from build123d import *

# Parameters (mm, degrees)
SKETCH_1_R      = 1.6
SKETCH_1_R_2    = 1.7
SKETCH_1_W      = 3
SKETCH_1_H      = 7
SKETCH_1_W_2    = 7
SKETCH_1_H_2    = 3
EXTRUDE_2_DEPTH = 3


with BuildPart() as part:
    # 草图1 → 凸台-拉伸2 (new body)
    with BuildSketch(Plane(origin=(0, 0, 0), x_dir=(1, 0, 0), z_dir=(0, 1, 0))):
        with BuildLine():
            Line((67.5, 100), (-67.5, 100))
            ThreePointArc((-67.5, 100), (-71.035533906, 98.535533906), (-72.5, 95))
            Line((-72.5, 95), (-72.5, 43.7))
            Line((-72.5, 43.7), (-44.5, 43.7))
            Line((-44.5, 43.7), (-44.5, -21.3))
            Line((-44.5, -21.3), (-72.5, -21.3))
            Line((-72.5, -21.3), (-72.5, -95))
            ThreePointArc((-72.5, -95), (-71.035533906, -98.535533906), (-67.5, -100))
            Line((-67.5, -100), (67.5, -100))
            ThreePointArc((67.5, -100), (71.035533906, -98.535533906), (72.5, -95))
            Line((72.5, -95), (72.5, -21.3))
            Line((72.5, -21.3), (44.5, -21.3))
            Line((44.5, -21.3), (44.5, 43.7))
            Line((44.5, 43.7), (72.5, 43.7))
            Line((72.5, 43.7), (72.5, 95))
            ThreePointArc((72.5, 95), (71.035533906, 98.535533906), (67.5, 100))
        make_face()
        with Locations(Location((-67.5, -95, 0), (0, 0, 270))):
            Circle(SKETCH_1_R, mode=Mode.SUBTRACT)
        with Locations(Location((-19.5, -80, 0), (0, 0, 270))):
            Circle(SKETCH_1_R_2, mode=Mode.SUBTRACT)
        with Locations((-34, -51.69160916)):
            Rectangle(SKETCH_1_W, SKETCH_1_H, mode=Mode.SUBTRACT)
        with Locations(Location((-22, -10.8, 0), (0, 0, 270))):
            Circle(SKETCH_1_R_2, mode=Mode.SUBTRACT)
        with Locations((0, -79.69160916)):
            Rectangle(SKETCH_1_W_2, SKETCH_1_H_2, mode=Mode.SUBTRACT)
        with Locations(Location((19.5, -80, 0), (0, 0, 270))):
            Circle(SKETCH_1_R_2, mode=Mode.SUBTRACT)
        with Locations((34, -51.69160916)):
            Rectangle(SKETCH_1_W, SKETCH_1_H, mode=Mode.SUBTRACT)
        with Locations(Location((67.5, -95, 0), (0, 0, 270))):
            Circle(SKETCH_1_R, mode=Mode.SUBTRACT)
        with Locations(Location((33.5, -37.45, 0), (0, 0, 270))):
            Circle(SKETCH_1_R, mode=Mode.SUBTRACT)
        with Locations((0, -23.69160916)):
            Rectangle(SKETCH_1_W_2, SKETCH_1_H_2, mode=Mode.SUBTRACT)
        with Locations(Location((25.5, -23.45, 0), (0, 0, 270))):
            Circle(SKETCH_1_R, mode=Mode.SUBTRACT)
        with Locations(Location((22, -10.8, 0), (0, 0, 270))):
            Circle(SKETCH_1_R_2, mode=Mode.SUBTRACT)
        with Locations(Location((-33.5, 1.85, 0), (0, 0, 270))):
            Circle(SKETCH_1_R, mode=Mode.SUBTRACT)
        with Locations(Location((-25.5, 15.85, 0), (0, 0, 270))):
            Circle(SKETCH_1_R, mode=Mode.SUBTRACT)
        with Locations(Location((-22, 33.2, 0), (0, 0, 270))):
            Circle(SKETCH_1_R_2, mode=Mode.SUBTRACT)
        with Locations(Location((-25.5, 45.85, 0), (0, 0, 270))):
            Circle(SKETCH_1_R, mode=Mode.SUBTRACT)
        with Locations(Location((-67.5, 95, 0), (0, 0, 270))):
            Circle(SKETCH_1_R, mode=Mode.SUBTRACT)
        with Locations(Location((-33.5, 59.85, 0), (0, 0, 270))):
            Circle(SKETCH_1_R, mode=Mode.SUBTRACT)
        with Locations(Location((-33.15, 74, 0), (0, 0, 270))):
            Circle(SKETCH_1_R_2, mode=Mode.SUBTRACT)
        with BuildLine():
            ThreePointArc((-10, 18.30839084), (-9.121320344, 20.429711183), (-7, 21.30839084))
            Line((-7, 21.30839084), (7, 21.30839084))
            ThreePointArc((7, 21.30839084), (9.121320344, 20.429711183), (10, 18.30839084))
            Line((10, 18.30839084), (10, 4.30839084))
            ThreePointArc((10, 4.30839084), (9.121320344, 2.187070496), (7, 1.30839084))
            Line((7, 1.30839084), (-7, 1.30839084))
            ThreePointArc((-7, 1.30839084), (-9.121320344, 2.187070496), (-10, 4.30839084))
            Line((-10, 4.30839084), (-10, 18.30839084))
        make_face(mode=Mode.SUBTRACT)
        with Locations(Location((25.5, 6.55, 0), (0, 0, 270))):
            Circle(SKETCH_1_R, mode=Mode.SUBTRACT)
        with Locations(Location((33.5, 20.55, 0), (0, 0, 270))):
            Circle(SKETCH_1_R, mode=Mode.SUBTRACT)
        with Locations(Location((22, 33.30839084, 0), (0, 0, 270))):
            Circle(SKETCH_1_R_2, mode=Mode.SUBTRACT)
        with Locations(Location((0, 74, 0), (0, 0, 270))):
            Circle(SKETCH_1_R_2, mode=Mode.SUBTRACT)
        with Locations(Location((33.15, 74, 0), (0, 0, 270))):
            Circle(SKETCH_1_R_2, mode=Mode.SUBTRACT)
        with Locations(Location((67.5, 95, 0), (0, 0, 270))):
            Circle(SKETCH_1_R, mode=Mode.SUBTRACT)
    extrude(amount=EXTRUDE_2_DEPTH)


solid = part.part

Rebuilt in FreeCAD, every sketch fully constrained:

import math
import FreeCAD as App
import Part
import Sketcher
from FreeCAD import Vector
Q = App.Units.Quantity

doc = App.newDocument("Part")
body = doc.addObject("PartDesign::Body", "Body")

sketch1 = doc.addObject("Sketcher::SketchObject", "Sketch")
body.addObject(sketch1)
sketch1.AttachmentSupport = (doc.XZ_Plane, [""])
sketch1.MapMode = "FlatFace"
sketch1.addGeometry(Part.LineSegment(Vector(67.5, -100, 0), Vector(-67.5, -100, 0)), False)
sketch1.addGeometry(Part.ArcOfCircle(Part.Circle(Vector(-67.5, -95, 0), Vector(0, 0, 1), 5), math.radians(180), math.radians(270)), False)
sketch1.addGeometry(Part.LineSegment(Vector(-72.5, -95, 0), Vector(-72.5, -43.7, 0)), False)
sketch1.addGeometry(Part.LineSegment(Vector(-72.5, -43.7, 0), Vector(-44.5, -43.7, 0)), False)
sketch1.addGeometry(Part.LineSegment(Vector(-44.5, -43.7, 0), Vector(-44.5, 21.3, 0)), False)
sketch1.addGeometry(Part.LineSegment(Vector(-44.5, 21.3, 0), Vector(-72.5, 21.3, 0)), False)
sketch1.addGeometry(Part.LineSegment(Vector(-72.5, 21.3, 0), Vector(-72.5, 95, 0)), False)
sketch1.addGeometry(Part.ArcOfCircle(Part.Circle(Vector(-67.5, 95, 0), Vector(0, 0, 1), 5), math.radians(90), math.radians(180)), False)
sketch1.addGeometry(Part.LineSegment(Vector(-67.5, 100, 0), Vector(67.5, 100, 0)), False)
sketch1.addGeometry(Part.ArcOfCircle(Part.Circle(Vector(67.5, 95, 0), Vector(0, 0, 1), 5), math.radians(0), math.radians(90)), False)
sketch1.addGeometry(Part.LineSegment(Vector(72.5, 95, 0), Vector(72.5, 21.3, 0)), False)
sketch1.addGeometry(Part.LineSegment(Vector(72.5, 21.3, 0), Vector(44.5, 21.3, 0)), False)
sketch1.addGeometry(Part.LineSegment(Vector(44.5, 21.3, 0), Vector(44.5, -43.7, 0)), False)
sketch1.addGeometry(Part.LineSegment(Vector(44.5, -43.7, 0), Vector(72.5, -43.7, 0)), False)
sketch1.addGeometry(Part.LineSegment(Vector(72.5, -43.7, 0), Vector(72.5, -95, 0)), False)
sketch1.addGeometry(Part.ArcOfCircle(Part.Circle(Vector(67.5, -95, 0), Vector(0, 0, 1), 5), math.radians(-90), math.radians(0)), False)
sketch1.addGeometry(Part.Circle(Vector(-67.5, 95, 0), Vector(0, 0, 1), 1.6), False)
sketch1.addGeometry(Part.Circle(Vector(-19.5, 80, 0), Vector(0, 0, 1), 1.7), False)
sketch1.addGeometry(Part.LineSegment(Vector(-32.5, 55.2, 0), Vector(-35.5, 55.2, 0)), False)
sketch1.addGeometry(Part.LineSegment(Vector(-35.5, 55.2, 0), Vector(-35.5, 48.2, 0)), False)
sketch1.addGeometry(Part.LineSegment(Vector(-35.5, 48.2, 0), Vector(-32.5, 48.2, 0)), False)
sketch1.addGeometry(Part.LineSegment(Vector(-32.5, 48.2, 0), Vector(-32.5, 55.2, 0)), False)
sketch1.addGeometry(Part.Circle(Vector(-22, 10.8, 0), Vector(0, 0, 1), 1.7), False)
sketch1.addGeometry(Part.LineSegment(Vector(3.5, 81.2, 0), Vector(-3.5, 81.2, 0)), False)
sketch1.addGeometry(Part.LineSegment(Vector(-3.5, 81.2, 0), Vector(-3.5, 78.2, 0)), False)
sketch1.addGeometry(Part.LineSegment(Vector(-3.5, 78.2, 0), Vector(3.5, 78.2, 0)), False)
sketch1.addGeometry(Part.LineSegment(Vector(3.5, 78.2, 0), Vector(3.5, 81.2, 0)), False)
sketch1.addGeometry(Part.Circle(Vector(19.5, 80, 0), Vector(0, 0, 1), 1.7), False)
sketch1.addGeometry(Part.LineSegment(Vector(35.5, 55.2, 0), Vector(32.5, 55.2, 0)), False)
sketch1.addGeometry(Part.LineSegment(Vector(32.5, 55.2, 0), Vector(32.5, 48.2, 0)), False)
sketch1.addGeometry(Part.LineSegment(Vector(32.5, 48.2, 0), Vector(35.5, 48.2, 0)), False)
sketch1.addGeometry(Part.LineSegment(Vector(35.5, 48.2, 0), Vector(35.5, 55.2, 0)), False)
sketch1.addGeometry(Part.Circle(Vector(67.5, 95, 0), Vector(0, 0, 1), 1.6), False)
sketch1.addGeometry(Part.Circle(Vector(33.5, 37.5, 0), Vector(0, 0, 1), 1.6), False)
sketch1.addGeometry(Part.LineSegment(Vector(3.5, 25.2, 0), Vector(-3.5, 25.2, 0)), False)
sketch1.addGeometry(Part.LineSegment(Vector(-3.5, 25.2, 0), Vector(-3.5, 22.2, 0)), False)
sketch1.addGeometry(Part.LineSegment(Vector(-3.5, 22.2, 0), Vector(3.5, 22.2, 0)), False)
sketch1.addGeometry(Part.LineSegment(Vector(3.5, 22.2, 0), Vector(3.5, 25.2, 0)), False)
sketch1.addGeometry(Part.Circle(Vector(25.5, 23.4, 0), Vector(0, 0, 1), 1.6), False)
sketch1.addGeometry(Part.Circle(Vector(22, 10.8, 0), Vector(0, 0, 1), 1.7), False)
sketch1.addGeometry(Part.Circle(Vector(-33.5, -1.9, 0), Vector(0, 0, 1), 1.6), False)
sketch1.addGeometry(Part.Circle(Vector(-25.5, -15.8, 0), Vector(0, 0, 1), 1.6), False)
sketch1.addGeometry(Part.Circle(Vector(-22, -33.2, 0), Vector(0, 0, 1), 1.7), False)
sketch1.addGeometry(Part.Circle(Vector(-25.5, -45.9, 0), Vector(0, 0, 1), 1.6), False)
sketch1.addGeometry(Part.Circle(Vector(-67.5, -95, 0), Vector(0, 0, 1), 1.6), False)
sketch1.addGeometry(Part.Circle(Vector(-33.5, -59.9, 0), Vector(0, 0, 1), 1.6), False)
sketch1.addGeometry(Part.Circle(Vector(-33.1, -74, 0), Vector(0, 0, 1), 1.7), False)
sketch1.addGeometry(Part.LineSegment(Vector(-10, -4.3, 0), Vector(-10, -18.3, 0)), False)
sketch1.addGeometry(Part.ArcOfCircle(Part.Circle(Vector(-7, -18.3, 0), Vector(0, 0, 1), 3), math.radians(180), math.radians(270)), False)
sketch1.addGeometry(Part.LineSegment(Vector(-7, -21.3, 0), Vector(7, -21.3, 0)), False)
sketch1.addGeometry(Part.ArcOfCircle(Part.Circle(Vector(7, -18.3, 0), Vector(0, 0, 1), 3), math.radians(-90), math.radians(0)), False)
sketch1.addGeometry(Part.LineSegment(Vector(10, -18.3, 0), Vector(10, -4.3, 0)), False)
sketch1.addGeometry(Part.ArcOfCircle(Part.Circle(Vector(7, -4.3, 0), Vector(0, 0, 1), 3), math.radians(0), math.radians(90)), False)
sketch1.addGeometry(Part.LineSegment(Vector(7, -1.3, 0), Vector(-7, -1.3, 0)), False)
sketch1.addGeometry(Part.ArcOfCircle(Part.Circle(Vector(-7, -4.3, 0), Vector(0, 0, 1), 3), math.radians(90), math.radians(180)), False)
sketch1.addGeometry(Part.Circle(Vector(25.5, -6.5, 0), Vector(0, 0, 1), 1.6), False)
sketch1.addGeometry(Part.Circle(Vector(33.5, -20.6, 0), Vector(0, 0, 1), 1.6), False)
sketch1.addGeometry(Part.Circle(Vector(22, -33.3, 0), Vector(0, 0, 1), 1.7), False)
sketch1.addGeometry(Part.Circle(Vector(0, -74, 0), Vector(0, 0, 1), 1.7), False)
sketch1.addGeometry(Part.Circle(Vector(33.1, -74, 0), Vector(0, 0, 1), 1.7), False)
sketch1.addGeometry(Part.Circle(Vector(67.5, -95, 0), Vector(0, 0, 1), 1.6), False)
sketch1.addConstraint(Sketcher.Constraint("Tangent", 0, 2, 1, 2))
sketch1.addConstraint(Sketcher.Constraint("Tangent", 1, 1, 2, 1))
sketch1.addConstraint(Sketcher.Constraint("Coincident", 2, 2, 3, 1))
sketch1.addConstraint(Sketcher.Constraint("Coincident", 3, 2, 4, 1))
sketch1.addConstraint(Sketcher.Constraint("Coincident", 4, 2, 5, 1))
sketch1.addConstraint(Sketcher.Constraint("Coincident", 5, 2, 6, 1))
sketch1.addConstraint(Sketcher.Constraint("Tangent", 6, 2, 7, 2))
sketch1.addConstraint(Sketcher.Constraint("Tangent", 7, 1, 8, 1))
sketch1.addConstraint(Sketcher.Constraint("Tangent", 8, 2, 9, 2))
sketch1.addConstraint(Sketcher.Constraint("Tangent", 9, 1, 10, 1))
sketch1.addConstraint(Sketcher.Constraint("Coincident", 10, 2, 11, 1))
sketch1.addConstraint(Sketcher.Constraint("Coincident", 11, 2, 12, 1))
sketch1.addConstraint(Sketcher.Constraint("Coincident", 12, 2, 13, 1))
sketch1.addConstraint(Sketcher.Constraint("Coincident", 13, 2, 14, 1))
sketch1.addConstraint(Sketcher.Constraint("Tangent", 14, 2, 15, 2))
sketch1.addConstraint(Sketcher.Constraint("Tangent", 15, 1, 0, 1))
sketch1.addConstraint(Sketcher.Constraint("Coincident", 18, 2, 19, 1))
sketch1.addConstraint(Sketcher.Constraint("Coincident", 19, 2, 20, 1))
sketch1.addConstraint(Sketcher.Constraint("Coincident", 20, 2, 21, 1))
sketch1.addConstraint(Sketcher.Constraint("Coincident", 21, 2, 18, 1))
sketch1.addConstraint(Sketcher.Constraint("Coincident", 23, 2, 24, 1))
sketch1.addConstraint(Sketcher.Constraint("Coincident", 24, 2, 25, 1))
sketch1.addConstraint(Sketcher.Constraint("Coincident", 25, 2, 26, 1))
sketch1.addConstraint(Sketcher.Constraint("Coincident", 26, 2, 23, 1))
sketch1.addConstraint(Sketcher.Constraint("Coincident", 28, 2, 29, 1))
sketch1.addConstraint(Sketcher.Constraint("Coincident", 29, 2, 30, 1))
sketch1.addConstraint(Sketcher.Constraint("Coincident", 30, 2, 31, 1))
sketch1.addConstraint(Sketcher.Constraint("Coincident", 31, 2, 28, 1))
sketch1.addConstraint(Sketcher.Constraint("Coincident", 34, 2, 35, 1))
sketch1.addConstraint(Sketcher.Constraint("Coincident", 35, 2, 36, 1))
sketch1.addConstraint(Sketcher.Constraint("Coincident", 36, 2, 37, 1))
sketch1.addConstraint(Sketcher.Constraint("Coincident", 37, 2, 34, 1))
sketch1.addConstraint(Sketcher.Constraint("Tangent", 47, 2, 48, 1))
sketch1.addConstraint(Sketcher.Constraint("Tangent", 48, 2, 49, 1))
sketch1.addConstraint(Sketcher.Constraint("Tangent", 49, 2, 50, 1))
sketch1.addConstraint(Sketcher.Constraint("Tangent", 50, 2, 51, 1))
sketch1.addConstraint(Sketcher.Constraint("Tangent", 51, 2, 52, 1))
sketch1.addConstraint(Sketcher.Constraint("Tangent", 52, 2, 53, 1))
sketch1.addConstraint(Sketcher.Constraint("Tangent", 53, 2, 54, 1))
sketch1.addConstraint(Sketcher.Constraint("Tangent", 54, 2, 47, 1))
sketch1.addConstraint(Sketcher.Constraint("Horizontal", 0))
sketch1.addConstraint(Sketcher.Constraint("Vertical", 2))
sketch1.addConstraint(Sketcher.Constraint("Horizontal", 3))
sketch1.addConstraint(Sketcher.Constraint("Vertical", 4))
sketch1.addConstraint(Sketcher.Constraint("Horizontal", 5))
sketch1.addConstraint(Sketcher.Constraint("Vertical", 6))
sketch1.addConstraint(Sketcher.Constraint("Horizontal", 8))
sketch1.addConstraint(Sketcher.Constraint("Vertical", 10))
sketch1.addConstraint(Sketcher.Constraint("Horizontal", 11))
sketch1.addConstraint(Sketcher.Constraint("Vertical", 12))
sketch1.addConstraint(Sketcher.Constraint("Horizontal", 13))
sketch1.addConstraint(Sketcher.Constraint("Vertical", 14))
sketch1.addConstraint(Sketcher.Constraint("Horizontal", 18))
sketch1.addConstraint(Sketcher.Constraint("Vertical", 19))
sketch1.addConstraint(Sketcher.Constraint("Horizontal", 20))
sketch1.addConstraint(Sketcher.Constraint("Vertical", 21))
sketch1.addConstraint(Sketcher.Constraint("Horizontal", 23))
sketch1.addConstraint(Sketcher.Constraint("Vertical", 24))
sketch1.addConstraint(Sketcher.Constraint("Horizontal", 25))
sketch1.addConstraint(Sketcher.Constraint("Vertical", 26))
sketch1.addConstraint(Sketcher.Constraint("Horizontal", 28))
sketch1.addConstraint(Sketcher.Constraint("Vertical", 29))
sketch1.addConstraint(Sketcher.Constraint("Horizontal", 30))
sketch1.addConstraint(Sketcher.Constraint("Vertical", 31))
sketch1.addConstraint(Sketcher.Constraint("Horizontal", 34))
sketch1.addConstraint(Sketcher.Constraint("Vertical", 35))
sketch1.addConstraint(Sketcher.Constraint("Horizontal", 36))
sketch1.addConstraint(Sketcher.Constraint("Vertical", 37))
sketch1.addConstraint(Sketcher.Constraint("Vertical", 47))
sketch1.addConstraint(Sketcher.Constraint("Horizontal", 49))
sketch1.addConstraint(Sketcher.Constraint("Vertical", 51))
sketch1.addConstraint(Sketcher.Constraint("Horizontal", 53))
sketch1.addConstraint(Sketcher.Constraint("Coincident", 16, 3, 7, 3))
sketch1.addConstraint(Sketcher.Constraint("Coincident", 32, 3, 9, 3))
sketch1.addConstraint(Sketcher.Constraint("Coincident", 44, 3, 1, 3))
sketch1.addConstraint(Sketcher.Constraint("Coincident", 60, 3, 15, 3))
sketch1.addConstraint(Sketcher.Constraint("Equal", 1, 7))
sketch1.addConstraint(Sketcher.Constraint("Equal", 7, 9))
sketch1.addConstraint(Sketcher.Constraint("Equal", 9, 15))
sketch1.addConstraint(Sketcher.Constraint("Equal", 17, 22))
sketch1.addConstraint(Sketcher.Constraint("Equal", 22, 27))
sketch1.addConstraint(Sketcher.Constraint("Equal", 16, 32))
sketch1.addConstraint(Sketcher.Constraint("Equal", 32, 33))
sketch1.addConstraint(Sketcher.Constraint("Equal", 33, 38))
sketch1.addConstraint(Sketcher.Constraint("Equal", 27, 39))
sketch1.addConstraint(Sketcher.Constraint("Equal", 38, 40))
sketch1.addConstraint(Sketcher.Constraint("Equal", 40, 41))
sketch1.addConstraint(Sketcher.Constraint("Equal", 39, 42))
sketch1.addConstraint(Sketcher.Constraint("Equal", 41, 43))
sketch1.addConstraint(Sketcher.Constraint("Equal", 43, 44))
sketch1.addConstraint(Sketcher.Constraint("Equal", 44, 45))
sketch1.addConstraint(Sketcher.Constraint("Equal", 42, 46))
sketch1.addConstraint(Sketcher.Constraint("Equal", 48, 50))
sketch1.addConstraint(Sketcher.Constraint("Equal", 50, 52))
sketch1.addConstraint(Sketcher.Constraint("Equal", 52, 54))
sketch1.addConstraint(Sketcher.Constraint("Equal", 45, 55))
sketch1.addConstraint(Sketcher.Constraint("Equal", 55, 56))
sketch1.addConstraint(Sketcher.Constraint("Equal", 46, 57))
sketch1.addConstraint(Sketcher.Constraint("Equal", 57, 58))
sketch1.addConstraint(Sketcher.Constraint("Equal", 58, 59))
sketch1.addConstraint(Sketcher.Constraint("Equal", 56, 60))
sketch1.addConstraint(Sketcher.Constraint("Symmetric", 1, 3, 9, 3, -1, 1))
sketch1.addConstraint(Sketcher.Constraint("Symmetric", 17, 3, 27, 3, -2))
sketch1.addConstraint(Sketcher.Constraint("Symmetric", 22, 3, 39, 3, -2))
sketch1.addConstraint(Sketcher.Constraint("Symmetric", 46, 3, 59, 3, -2))
sketch1.addConstraint(Sketcher.Constraint("Symmetric", 5, 2, 10, 2, -2))
sketch1.addConstraint(Sketcher.Constraint("Symmetric", 3, 2, 12, 2, -2))
sketch1.addConstraint(Sketcher.Constraint("Symmetric", 21, 2, 28, 2, -2))
sketch1.addConstraint(Sketcher.Constraint("Symmetric", 19, 2, 30, 2, -2))
sketch1.addConstraint(Sketcher.Constraint("PointOnObject", 58, 3, -2))
sketch1.addConstraint(Sketcher.Constraint("Horizontal", 46, 3, 58, 3))
sketch1.addConstraint(Sketcher.Constraint("Vertical", 9, 3, 15, 3))
sketch1.addConstraint(Sketcher.Constraint("Vertical", 22, 3, 42, 3))
sketch1.addConstraint(Sketcher.Constraint("Vertical", 41, 3, 43, 3))
sketch1.addConstraint(Sketcher.Constraint("Vertical", 40, 3, 45, 3))
sketch1.addConstraint(Sketcher.Constraint("Vertical", 38, 3, 55, 3))
sketch1.addConstraint(Sketcher.Constraint("Vertical", 33, 3, 56, 3))
sketch1.addConstraint(Sketcher.Constraint("Vertical", 39, 3, 57, 3))
sketch1.addConstraint(Sketcher.Constraint("Vertical", 24, 2, 34, 2))
sketch1.addConstraint(Sketcher.Constraint("Vertical", 26, 2, 36, 2))
sketch1.addConstraint(Sketcher.Constraint("Equal", 36, 19))
sketch1.addConstraint(Sketcher.Constraint("Equal", 30, 24))
sketch1.addConstraint(Sketcher.Constraint("Equal", 26, 35))
sketch1.addConstraint(Sketcher.Constraint("Equal", 53, 47))
sketch1.addConstraint(Sketcher.Constraint("Radius", 1, Q("5 mm")))
sketch1.addConstraint(Sketcher.Constraint("Radius", 48, Q("3 mm")))
sketch1.addConstraint(Sketcher.Constraint("Diameter", 16, Q("3.2 mm")))
sketch1.addConstraint(Sketcher.Constraint("Diameter", 17, Q("3.4 mm")))
sketch1.addConstraint(Sketcher.Constraint("DistanceX", 0, 2, 0, 1, Q("135 mm")))
sketch1.addConstraint(Sketcher.Constraint("DistanceX", 3, 1, 3, 2, Q("28 mm")))
sketch1.addConstraint(Sketcher.Constraint("DistanceX", 18, 2, 18, 1, Q("3 mm")))
sketch1.addConstraint(Sketcher.Constraint("DistanceX", 23, 2, 23, 1, Q("7 mm")))
sketch1.addConstraint(Sketcher.Constraint("DistanceX", 49, 1, 49, 2, Q("14 mm")))
sketch1.addConstraint(Sketcher.Constraint("DistanceY", 4, 1, 4, 2, Q("65 mm")))
sketch1.addConstraint(Sketcher.Constraint("DistanceY", 2, 1, 2, 2, Q("51.3 mm")))
sketch1.addConstraint(Sketcher.Constraint("DistanceY", 6, 1, 6, 2, Q("73.7 mm")))
sketch1.addConstraint(Sketcher.Constraint("DistanceY", -1, 1, 17, 3, Q("80 mm")))
sketch1.addConstraint(Sketcher.Constraint("DistanceX", 22, 3, -1, 1, Q("22 mm")))
sketch1.addConstraint(Sketcher.Constraint("DistanceY", 46, 3, -1, 1, Q("74 mm")))
sketch1.addConstraint(Sketcher.Constraint("DistanceX", 48, 3, -1, 1, Q("7 mm")))
sketch1.addConstraint(Sketcher.Constraint("DistanceX", 17, 3, -1, 1, Q("19.5 mm")))
sketch1.addConstraint(Sketcher.Constraint("DistanceY", -1, 1, 22, 3, Q("10.8 mm")))
sketch1.addConstraint(Sketcher.Constraint("DistanceX", -1, 1, 33, 3, Q("33.5 mm")))
sketch1.addConstraint(Sketcher.Constraint("DistanceX", -1, 1, 38, 3, Q("25.5 mm")))
sketch1.addConstraint(Sketcher.Constraint("DistanceX", 40, 3, -1, 1, Q("33.5 mm")))
sketch1.addConstraint(Sketcher.Constraint("DistanceX", 41, 3, -1, 1, Q("25.5 mm")))
sketch1.addConstraint(Sketcher.Constraint("DistanceY", 42, 3, -1, 1, Q("33.2 mm")))
sketch1.addConstraint(Sketcher.Constraint("DistanceX", 18, 2, -1, 1, Q("35.5 mm")))
sketch1.addConstraint(Sketcher.Constraint("DistanceX", 23, 2, -1, 1, Q("3.5 mm")))
sketch1.addConstraint(Sketcher.Constraint("DistanceY", -1, 1, 33, 3, Q("37.45 mm")))
sketch1.addConstraint(Sketcher.Constraint("DistanceY", -1, 1, 38, 3, Q("23.45 mm")))
sketch1.addConstraint(Sketcher.Constraint("DistanceY", 40, 3, -1, 1, Q("1.85 mm")))
sketch1.addConstraint(Sketcher.Constraint("DistanceY", 41, 3, -1, 1, Q("15.85 mm")))
sketch1.addConstraint(Sketcher.Constraint("DistanceY", 43, 3, -1, 1, Q("45.85 mm")))
sketch1.addConstraint(Sketcher.Constraint("DistanceY", 45, 3, -1, 1, Q("59.85 mm")))
sketch1.addConstraint(Sketcher.Constraint("DistanceX", 46, 3, -1, 1, Q("33.15 mm")))
sketch1.addConstraint(Sketcher.Constraint("DistanceY", 55, 3, -1, 1, Q("6.55 mm")))
sketch1.addConstraint(Sketcher.Constraint("DistanceY", 56, 3, -1, 1, Q("20.55 mm")))
sketch1.addConstraint(Sketcher.Constraint("DistanceY", 48, 3, -1, 1, Q("18.308391 mm")))
sketch1.addConstraint(Sketcher.Constraint("DistanceY", 57, 3, -1, 1, Q("33.308391 mm")))
sketch1.addConstraint(Sketcher.Constraint("DistanceY", -1, 1, 18, 2, Q("55.191609 mm")))
sketch1.addConstraint(Sketcher.Constraint("DistanceY", -1, 1, 23, 2, Q("81.191609 mm")))
sketch1.addConstraint(Sketcher.Constraint("DistanceY", -1, 1, 34, 2, Q("25.191609 mm")))
pad1 = doc.addObject("PartDesign::Pad", "Pad")
body.addObject(pad1)
pad1.Profile = sketch1
pad1.Length = 3
pad1.Reversed = True

doc.recompute()
